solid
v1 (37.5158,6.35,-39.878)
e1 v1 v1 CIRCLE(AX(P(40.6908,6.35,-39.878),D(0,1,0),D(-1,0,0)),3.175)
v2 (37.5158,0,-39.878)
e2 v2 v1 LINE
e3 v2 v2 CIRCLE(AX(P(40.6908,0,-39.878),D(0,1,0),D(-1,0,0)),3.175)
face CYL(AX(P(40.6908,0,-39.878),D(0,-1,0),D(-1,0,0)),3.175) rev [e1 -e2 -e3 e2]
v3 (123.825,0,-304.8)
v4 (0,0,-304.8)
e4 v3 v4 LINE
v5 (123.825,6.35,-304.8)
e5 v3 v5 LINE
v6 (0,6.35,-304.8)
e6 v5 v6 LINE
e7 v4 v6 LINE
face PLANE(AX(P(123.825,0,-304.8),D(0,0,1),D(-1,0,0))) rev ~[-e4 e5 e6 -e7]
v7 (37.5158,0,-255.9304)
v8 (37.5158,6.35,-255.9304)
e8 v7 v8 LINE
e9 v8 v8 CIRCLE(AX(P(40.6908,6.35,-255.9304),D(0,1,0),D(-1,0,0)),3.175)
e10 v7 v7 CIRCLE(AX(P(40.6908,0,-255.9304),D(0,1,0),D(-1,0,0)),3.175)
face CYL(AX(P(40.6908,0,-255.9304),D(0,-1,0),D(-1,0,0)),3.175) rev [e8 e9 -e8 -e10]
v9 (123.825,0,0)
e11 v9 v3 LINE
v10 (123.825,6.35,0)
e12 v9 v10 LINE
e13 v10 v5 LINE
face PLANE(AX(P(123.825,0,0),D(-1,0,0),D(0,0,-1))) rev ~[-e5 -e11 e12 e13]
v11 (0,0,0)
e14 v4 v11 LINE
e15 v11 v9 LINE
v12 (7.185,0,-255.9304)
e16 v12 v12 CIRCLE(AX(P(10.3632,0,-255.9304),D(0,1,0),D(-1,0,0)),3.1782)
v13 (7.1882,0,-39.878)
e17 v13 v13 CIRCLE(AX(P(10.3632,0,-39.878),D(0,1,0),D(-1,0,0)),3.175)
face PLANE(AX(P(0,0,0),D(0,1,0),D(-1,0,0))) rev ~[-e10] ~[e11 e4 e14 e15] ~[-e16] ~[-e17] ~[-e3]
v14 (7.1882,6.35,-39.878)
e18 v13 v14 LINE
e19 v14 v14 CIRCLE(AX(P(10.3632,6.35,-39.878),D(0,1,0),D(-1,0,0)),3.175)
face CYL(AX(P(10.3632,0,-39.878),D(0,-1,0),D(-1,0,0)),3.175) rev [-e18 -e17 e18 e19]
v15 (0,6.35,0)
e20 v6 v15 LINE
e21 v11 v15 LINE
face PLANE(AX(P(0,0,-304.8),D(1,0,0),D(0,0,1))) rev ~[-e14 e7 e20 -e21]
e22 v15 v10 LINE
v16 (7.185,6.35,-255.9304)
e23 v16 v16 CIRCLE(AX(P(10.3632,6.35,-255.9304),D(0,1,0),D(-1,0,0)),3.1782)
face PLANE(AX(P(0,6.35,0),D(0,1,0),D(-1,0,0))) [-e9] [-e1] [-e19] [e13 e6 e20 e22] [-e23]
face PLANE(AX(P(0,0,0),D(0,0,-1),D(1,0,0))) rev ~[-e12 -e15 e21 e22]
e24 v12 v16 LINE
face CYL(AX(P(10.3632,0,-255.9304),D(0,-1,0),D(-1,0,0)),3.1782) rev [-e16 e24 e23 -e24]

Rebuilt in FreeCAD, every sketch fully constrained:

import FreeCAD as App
import Part
import Sketcher
Q = App.Units.Quantity


def add_polygon(sketch, points):
    """Adds a closed chain of lines whose ends are joined by coincident constraints."""
    first, n = sketch.GeometryCount, len(points)
    for a, b in zip(points, points[1:] + points[:1]):
        sketch.addGeometry(Part.LineSegment(App.Vector(*a, 0), App.Vector(*b, 0)), False)
    for i in range(n):
        sketch.addConstraint(Sketcher.Constraint("Coincident", first + i, 2, first + (i + 1) % n, 1))

doc = App.newDocument("Part")
body = doc.addObject("PartDesign::Body", "Body")

sketch1 = doc.addObject("Sketcher::SketchObject", "Sketch")
body.addObject(sketch1)
sketch1.AttachmentSupport = (doc.XZ_Plane, [""])
sketch1.MapMode = "FlatFace"
add_polygon(sketch1, [(0, -304.8), (0, 0), (123.825, 0), (123.825, -304.8)])
sketch1.addGeometry(Part.Circle(App.Vector(40.6908, -255.9304, 0), App.Vector(0, 0, 1), 3.175), False)
sketch1.addGeometry(Part.Circle(App.Vector(10.3632, -255.9304, 0), App.Vector(0, 0, 1), 3.1782), False)
sketch1.addGeometry(Part.Circle(App.Vector(40.6908, -39.878, 0), App.Vector(0, 0, 1), 3.175), False)
sketch1.addGeometry(Part.Circle(App.Vector(10.3632, -39.878, 0), App.Vector(0, 0, 1), 3.175), False)
sketch1.addConstraint(Sketcher.Constraint("Vertical", 0))
sketch1.addConstraint(Sketcher.Constraint("Horizontal", 1))
sketch1.addConstraint(Sketcher.Constraint("Vertical", 2))
sketch1.addConstraint(Sketcher.Constraint("Horizontal", 3))
sketch1.addConstraint(Sketcher.Constraint("Coincident", 0, 2, -1, 1))
sketch1.addConstraint(Sketcher.Constraint("Equal", 4, 6))
sketch1.addConstraint(Sketcher.Constraint("Equal", 6, 7))
sketch1.addConstraint(Sketcher.Constraint("Horizontal", 4, 3, 5, 3))
sketch1.addConstraint(Sketcher.Constraint("Horizontal", 6, 3, 7, 3))
sketch1.addConstraint(Sketcher.Constraint("Vertical", 4, 3, 6, 3))
sketch1.addConstraint(Sketcher.Constraint("Vertical", 5, 3, 7, 3))
sketch1.addConstraint(Sketcher.Constraint("Diameter", 4, Q("0.25 in")))
sketch1.addConstraint(Sketcher.Constraint("DistanceY", 0, 1, 0, 2, Q("12 in")))
sketch1.addConstraint(Sketcher.Constraint("DistanceX", 1, 1, 1, 2, Q("4.875 in")))
sketch1.addConstraint(Sketcher.Constraint("DistanceY", 6, 3, -1, 1, Q("1.57 in")))
sketch1.addConstraint(Sketcher.Constraint("DistanceX", -1, 1, 4, 3, Q("1.602 in")))
sketch1.addConstraint(Sketcher.Constraint("DistanceY", 4, 3, -1, 1, Q("10.076 in")))
sketch1.addConstraint(Sketcher.Constraint("DistanceX", -1, 1, 5, 3, Q("0.408 in")))
sketch1.addConstraint(Sketcher.Constraint("Diameter", 5, Q("6.3564 mm")))
pad1 = doc.addObject("PartDesign::Pad", "Pad")
body.addObject(pad1)
pad1.Profile = sketch1
pad1.Length = Q("0.25 in")
pad1.Reversed = True

doc.recompute()
